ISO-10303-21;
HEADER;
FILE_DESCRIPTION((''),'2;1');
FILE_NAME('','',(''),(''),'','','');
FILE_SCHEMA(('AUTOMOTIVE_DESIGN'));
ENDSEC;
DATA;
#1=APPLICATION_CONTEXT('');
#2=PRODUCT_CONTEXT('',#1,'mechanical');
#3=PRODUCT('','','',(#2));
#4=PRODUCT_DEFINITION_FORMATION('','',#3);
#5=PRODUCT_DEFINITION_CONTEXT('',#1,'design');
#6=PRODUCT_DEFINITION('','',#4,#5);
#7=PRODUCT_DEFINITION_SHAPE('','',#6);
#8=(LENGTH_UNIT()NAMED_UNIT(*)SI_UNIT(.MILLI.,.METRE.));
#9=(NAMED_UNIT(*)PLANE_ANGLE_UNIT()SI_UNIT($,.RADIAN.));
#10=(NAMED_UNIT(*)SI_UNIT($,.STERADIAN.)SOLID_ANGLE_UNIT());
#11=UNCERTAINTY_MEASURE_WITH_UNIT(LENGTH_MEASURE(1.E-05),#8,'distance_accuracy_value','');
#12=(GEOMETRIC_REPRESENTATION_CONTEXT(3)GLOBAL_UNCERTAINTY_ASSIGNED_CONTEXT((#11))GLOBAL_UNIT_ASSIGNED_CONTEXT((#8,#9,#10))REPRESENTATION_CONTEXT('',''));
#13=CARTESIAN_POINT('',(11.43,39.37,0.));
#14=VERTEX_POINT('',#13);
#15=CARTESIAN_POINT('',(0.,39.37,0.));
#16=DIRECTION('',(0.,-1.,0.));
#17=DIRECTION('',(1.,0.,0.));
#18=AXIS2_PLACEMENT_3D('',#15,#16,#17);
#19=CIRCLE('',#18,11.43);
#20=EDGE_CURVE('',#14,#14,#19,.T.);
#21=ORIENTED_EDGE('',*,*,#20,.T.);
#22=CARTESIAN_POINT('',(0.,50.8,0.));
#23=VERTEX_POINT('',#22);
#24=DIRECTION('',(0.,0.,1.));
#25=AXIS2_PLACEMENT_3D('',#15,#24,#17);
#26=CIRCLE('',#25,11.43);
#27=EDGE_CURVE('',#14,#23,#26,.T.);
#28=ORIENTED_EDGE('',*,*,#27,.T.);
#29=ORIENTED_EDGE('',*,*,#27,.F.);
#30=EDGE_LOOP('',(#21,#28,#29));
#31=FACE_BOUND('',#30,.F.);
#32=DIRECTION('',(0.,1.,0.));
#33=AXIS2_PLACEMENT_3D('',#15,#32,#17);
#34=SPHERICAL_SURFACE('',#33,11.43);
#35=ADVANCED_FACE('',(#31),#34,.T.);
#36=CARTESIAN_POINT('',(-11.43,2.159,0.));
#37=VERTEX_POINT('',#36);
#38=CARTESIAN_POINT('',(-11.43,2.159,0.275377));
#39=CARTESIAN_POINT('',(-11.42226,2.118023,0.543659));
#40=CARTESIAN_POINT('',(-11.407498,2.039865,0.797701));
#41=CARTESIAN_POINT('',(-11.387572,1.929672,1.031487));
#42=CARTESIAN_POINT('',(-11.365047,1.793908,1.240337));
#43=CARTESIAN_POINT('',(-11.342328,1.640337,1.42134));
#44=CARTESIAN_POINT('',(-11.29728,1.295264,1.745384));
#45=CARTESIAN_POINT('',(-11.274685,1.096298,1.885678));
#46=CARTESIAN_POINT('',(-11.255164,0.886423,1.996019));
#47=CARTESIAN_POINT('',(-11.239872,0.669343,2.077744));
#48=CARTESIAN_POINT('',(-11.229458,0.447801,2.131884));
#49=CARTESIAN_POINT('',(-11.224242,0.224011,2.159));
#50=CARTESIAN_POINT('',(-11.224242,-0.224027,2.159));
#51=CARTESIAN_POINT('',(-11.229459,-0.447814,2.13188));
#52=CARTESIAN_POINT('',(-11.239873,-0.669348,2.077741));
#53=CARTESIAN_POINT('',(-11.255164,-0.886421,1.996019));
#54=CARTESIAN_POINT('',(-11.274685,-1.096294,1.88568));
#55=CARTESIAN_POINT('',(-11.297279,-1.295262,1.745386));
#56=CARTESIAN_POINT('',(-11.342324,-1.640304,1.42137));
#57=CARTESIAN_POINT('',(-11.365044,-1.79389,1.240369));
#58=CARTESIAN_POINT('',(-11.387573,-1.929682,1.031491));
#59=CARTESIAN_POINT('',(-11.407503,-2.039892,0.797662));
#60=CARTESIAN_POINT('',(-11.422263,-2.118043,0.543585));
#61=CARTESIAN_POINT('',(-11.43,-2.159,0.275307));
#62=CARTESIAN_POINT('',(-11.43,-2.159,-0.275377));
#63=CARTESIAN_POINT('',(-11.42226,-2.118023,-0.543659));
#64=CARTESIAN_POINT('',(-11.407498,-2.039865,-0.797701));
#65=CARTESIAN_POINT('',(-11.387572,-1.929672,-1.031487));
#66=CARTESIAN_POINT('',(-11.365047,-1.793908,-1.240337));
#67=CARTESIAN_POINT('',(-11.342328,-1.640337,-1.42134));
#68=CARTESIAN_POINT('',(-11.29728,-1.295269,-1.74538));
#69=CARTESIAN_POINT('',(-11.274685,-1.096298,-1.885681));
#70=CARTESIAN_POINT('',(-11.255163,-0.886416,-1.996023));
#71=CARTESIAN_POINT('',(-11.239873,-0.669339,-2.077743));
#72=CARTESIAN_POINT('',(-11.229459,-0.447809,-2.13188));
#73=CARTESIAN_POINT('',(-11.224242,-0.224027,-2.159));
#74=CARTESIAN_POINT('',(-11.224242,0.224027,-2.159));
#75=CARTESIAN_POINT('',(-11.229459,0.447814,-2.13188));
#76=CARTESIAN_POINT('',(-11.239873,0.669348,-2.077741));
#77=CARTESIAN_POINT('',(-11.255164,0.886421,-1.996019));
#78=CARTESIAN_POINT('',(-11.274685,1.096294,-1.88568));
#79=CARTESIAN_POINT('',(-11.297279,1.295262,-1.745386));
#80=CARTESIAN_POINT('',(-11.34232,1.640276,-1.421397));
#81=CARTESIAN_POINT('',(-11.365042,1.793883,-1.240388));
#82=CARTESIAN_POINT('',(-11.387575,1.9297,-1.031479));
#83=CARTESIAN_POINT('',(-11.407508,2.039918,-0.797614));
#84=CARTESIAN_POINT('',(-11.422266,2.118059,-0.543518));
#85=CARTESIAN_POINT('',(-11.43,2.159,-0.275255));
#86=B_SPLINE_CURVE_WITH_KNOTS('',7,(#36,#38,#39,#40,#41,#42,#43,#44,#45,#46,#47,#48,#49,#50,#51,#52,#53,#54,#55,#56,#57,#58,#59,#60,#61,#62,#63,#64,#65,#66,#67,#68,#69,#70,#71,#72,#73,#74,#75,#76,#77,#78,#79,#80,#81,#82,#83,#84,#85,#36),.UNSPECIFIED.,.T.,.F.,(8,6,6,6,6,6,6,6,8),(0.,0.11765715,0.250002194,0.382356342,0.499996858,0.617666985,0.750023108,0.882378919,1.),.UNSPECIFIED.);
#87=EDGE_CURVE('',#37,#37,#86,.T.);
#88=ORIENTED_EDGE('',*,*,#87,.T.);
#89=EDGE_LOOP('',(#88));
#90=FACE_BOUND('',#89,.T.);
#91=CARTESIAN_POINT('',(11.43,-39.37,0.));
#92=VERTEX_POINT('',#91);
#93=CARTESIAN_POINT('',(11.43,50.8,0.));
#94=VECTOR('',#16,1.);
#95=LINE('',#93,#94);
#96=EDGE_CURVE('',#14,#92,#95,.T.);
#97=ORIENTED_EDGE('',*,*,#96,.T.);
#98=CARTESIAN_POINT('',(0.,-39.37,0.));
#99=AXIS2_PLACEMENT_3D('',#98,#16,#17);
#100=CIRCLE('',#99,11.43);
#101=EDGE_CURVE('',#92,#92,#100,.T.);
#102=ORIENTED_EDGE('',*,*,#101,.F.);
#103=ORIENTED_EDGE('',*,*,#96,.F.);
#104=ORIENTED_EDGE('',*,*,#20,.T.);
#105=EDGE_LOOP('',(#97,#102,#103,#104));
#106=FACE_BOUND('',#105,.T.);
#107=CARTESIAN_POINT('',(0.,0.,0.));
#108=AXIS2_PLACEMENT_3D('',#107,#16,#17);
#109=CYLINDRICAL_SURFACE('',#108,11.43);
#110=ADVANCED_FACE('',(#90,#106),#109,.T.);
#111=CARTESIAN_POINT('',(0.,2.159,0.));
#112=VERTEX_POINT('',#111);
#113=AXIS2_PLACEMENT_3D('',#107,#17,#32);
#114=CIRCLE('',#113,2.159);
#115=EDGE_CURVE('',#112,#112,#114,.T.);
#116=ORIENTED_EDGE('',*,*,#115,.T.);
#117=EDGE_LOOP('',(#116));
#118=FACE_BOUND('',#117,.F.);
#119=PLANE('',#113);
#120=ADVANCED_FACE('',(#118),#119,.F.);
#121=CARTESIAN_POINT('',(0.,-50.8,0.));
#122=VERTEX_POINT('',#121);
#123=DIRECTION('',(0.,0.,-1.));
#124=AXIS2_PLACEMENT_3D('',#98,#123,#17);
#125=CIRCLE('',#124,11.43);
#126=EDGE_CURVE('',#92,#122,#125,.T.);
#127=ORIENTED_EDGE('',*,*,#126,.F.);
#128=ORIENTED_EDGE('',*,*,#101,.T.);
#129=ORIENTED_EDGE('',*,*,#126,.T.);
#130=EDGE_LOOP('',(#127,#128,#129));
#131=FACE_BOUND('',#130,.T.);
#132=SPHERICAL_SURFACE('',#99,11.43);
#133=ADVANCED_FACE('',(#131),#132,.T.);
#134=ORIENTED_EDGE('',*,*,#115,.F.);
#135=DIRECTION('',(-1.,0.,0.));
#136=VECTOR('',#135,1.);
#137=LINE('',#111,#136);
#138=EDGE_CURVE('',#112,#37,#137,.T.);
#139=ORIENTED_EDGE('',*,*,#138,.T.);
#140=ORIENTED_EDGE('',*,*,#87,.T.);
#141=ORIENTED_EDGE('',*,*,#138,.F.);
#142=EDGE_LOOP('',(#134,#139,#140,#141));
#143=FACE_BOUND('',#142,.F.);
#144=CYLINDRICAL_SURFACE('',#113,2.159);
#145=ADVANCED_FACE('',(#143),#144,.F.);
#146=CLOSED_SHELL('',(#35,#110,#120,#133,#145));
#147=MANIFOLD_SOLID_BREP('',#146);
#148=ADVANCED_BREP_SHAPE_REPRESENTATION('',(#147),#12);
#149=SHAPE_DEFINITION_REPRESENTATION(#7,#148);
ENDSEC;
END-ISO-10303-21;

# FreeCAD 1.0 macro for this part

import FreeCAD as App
import Part
import Sketcher

V = App.Vector
Q = App.Units.Quantity


def edges_at(feature, points):
    """Names of the edges that pass closest to the given points."""
    edges = feature.Shape.Edges
    near = lambda p: min(range(len(edges)), key=lambda i: edges[i].distToShape(Part.Vertex(*p))[0])
    return sorted({f"Edge{near(p) + 1}" for p in points})

doc = App.newDocument("Part")
body = doc.addObject("PartDesign::Body", "Body")

# Sketch on XZ plane
sketch1 = body.newObject("Sketcher::SketchObject", "Sketch")
sketch1.AttachmentSupport = (doc.getObject("XZ_Plane"), [""])
sketch1.MapMode = "FlatFace"
sketch1.addGeometry(Part.Circle(V(0, 0, 0), V(0, 0, 1), 11.43), False)
sketch1.addConstraint([
    Sketcher.Constraint("Coincident", 0, 3, -1, 1),
    Sketcher.Constraint("Diameter", 0, Q("0.9 in")),
])
pad1 = body.newObject("PartDesign::Pad", "Pad")
pad1.Profile = sketch1
pad1.Length = Q("4 in")
pad1.Midplane = True
doc.recompute()

fillet = body.newObject("PartDesign::Fillet", "Fillet")
fillet.Base = (pad1, edges_at(pad1, [(-11.43, 50.8, 0), (-11.43, -50.8, 0)]))
fillet.Radius = Q("0.45 in")

# Sketch on YZ plane
sketch2 = body.newObject("Sketcher::SketchObject", "Sketch001")
sketch2.AttachmentSupport = (doc.getObject("YZ_Plane"), [""])
sketch2.MapMode = "FlatFace"
sketch2.addGeometry(Part.Circle(V(0, 0, 0), V(0, 0, 1), 2.159), False)
sketch2.addConstraint([
    Sketcher.Constraint("Coincident", 0, 3, -1, 1),
    Sketcher.Constraint("Diameter", 0, Q("0.17 in")),
])
pocket1 = body.newObject("PartDesign::Pocket", "Pocket")
pocket1.Profile = sketch2
pocket1.Type = "ThroughAll"

doc.recompute()
